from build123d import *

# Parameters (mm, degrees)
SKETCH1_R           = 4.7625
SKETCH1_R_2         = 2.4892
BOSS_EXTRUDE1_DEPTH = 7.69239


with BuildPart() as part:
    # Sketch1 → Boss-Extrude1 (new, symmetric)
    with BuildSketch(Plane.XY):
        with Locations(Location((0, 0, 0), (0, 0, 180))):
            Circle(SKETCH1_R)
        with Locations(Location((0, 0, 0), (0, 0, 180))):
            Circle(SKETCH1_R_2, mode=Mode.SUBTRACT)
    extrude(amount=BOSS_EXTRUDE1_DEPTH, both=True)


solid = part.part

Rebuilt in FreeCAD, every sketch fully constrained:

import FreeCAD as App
import Part
import Sketcher
from FreeCAD import Vector
Q = App.Units.Quantity

doc = App.newDocument("Part")
body = doc.addObject("PartDesign::Body", "Body")

sketch1 = body.newObject("Sketcher::SketchObject", "Sketch")
sketch1.AttachmentSupport = (doc.getObject("XY_Plane"), [""])
sketch1.MapMode = "FlatFace"
sketch1.addGeometry(Part.Circle(Vector(0, 0, 0), Vector(0, 0, 1), 4.8), False)
sketch1.addGeometry(Part.Circle(Vector(0, 0, 0), Vector(0, 0, 1), 2.5), False)
sketch1.addConstraint(Sketcher.Constraint("Coincident", 0, 3, -1, 1))
sketch1.addConstraint(Sketcher.Constraint("Coincident", 1, 3, -1, 1))
sketch1.addConstraint(Sketcher.Constraint("Diameter", 0, Q("0.375 in")))
sketch1.addConstraint(Sketcher.Constraint("Diameter", 1, Q("0.196 in")))
pad1 = body.newObject("PartDesign::Pad", "Pad")
pad1.Profile = sketch1
pad1.Length = Q("0.6057 in")
pad1.Midplane = True

doc.recompute()
